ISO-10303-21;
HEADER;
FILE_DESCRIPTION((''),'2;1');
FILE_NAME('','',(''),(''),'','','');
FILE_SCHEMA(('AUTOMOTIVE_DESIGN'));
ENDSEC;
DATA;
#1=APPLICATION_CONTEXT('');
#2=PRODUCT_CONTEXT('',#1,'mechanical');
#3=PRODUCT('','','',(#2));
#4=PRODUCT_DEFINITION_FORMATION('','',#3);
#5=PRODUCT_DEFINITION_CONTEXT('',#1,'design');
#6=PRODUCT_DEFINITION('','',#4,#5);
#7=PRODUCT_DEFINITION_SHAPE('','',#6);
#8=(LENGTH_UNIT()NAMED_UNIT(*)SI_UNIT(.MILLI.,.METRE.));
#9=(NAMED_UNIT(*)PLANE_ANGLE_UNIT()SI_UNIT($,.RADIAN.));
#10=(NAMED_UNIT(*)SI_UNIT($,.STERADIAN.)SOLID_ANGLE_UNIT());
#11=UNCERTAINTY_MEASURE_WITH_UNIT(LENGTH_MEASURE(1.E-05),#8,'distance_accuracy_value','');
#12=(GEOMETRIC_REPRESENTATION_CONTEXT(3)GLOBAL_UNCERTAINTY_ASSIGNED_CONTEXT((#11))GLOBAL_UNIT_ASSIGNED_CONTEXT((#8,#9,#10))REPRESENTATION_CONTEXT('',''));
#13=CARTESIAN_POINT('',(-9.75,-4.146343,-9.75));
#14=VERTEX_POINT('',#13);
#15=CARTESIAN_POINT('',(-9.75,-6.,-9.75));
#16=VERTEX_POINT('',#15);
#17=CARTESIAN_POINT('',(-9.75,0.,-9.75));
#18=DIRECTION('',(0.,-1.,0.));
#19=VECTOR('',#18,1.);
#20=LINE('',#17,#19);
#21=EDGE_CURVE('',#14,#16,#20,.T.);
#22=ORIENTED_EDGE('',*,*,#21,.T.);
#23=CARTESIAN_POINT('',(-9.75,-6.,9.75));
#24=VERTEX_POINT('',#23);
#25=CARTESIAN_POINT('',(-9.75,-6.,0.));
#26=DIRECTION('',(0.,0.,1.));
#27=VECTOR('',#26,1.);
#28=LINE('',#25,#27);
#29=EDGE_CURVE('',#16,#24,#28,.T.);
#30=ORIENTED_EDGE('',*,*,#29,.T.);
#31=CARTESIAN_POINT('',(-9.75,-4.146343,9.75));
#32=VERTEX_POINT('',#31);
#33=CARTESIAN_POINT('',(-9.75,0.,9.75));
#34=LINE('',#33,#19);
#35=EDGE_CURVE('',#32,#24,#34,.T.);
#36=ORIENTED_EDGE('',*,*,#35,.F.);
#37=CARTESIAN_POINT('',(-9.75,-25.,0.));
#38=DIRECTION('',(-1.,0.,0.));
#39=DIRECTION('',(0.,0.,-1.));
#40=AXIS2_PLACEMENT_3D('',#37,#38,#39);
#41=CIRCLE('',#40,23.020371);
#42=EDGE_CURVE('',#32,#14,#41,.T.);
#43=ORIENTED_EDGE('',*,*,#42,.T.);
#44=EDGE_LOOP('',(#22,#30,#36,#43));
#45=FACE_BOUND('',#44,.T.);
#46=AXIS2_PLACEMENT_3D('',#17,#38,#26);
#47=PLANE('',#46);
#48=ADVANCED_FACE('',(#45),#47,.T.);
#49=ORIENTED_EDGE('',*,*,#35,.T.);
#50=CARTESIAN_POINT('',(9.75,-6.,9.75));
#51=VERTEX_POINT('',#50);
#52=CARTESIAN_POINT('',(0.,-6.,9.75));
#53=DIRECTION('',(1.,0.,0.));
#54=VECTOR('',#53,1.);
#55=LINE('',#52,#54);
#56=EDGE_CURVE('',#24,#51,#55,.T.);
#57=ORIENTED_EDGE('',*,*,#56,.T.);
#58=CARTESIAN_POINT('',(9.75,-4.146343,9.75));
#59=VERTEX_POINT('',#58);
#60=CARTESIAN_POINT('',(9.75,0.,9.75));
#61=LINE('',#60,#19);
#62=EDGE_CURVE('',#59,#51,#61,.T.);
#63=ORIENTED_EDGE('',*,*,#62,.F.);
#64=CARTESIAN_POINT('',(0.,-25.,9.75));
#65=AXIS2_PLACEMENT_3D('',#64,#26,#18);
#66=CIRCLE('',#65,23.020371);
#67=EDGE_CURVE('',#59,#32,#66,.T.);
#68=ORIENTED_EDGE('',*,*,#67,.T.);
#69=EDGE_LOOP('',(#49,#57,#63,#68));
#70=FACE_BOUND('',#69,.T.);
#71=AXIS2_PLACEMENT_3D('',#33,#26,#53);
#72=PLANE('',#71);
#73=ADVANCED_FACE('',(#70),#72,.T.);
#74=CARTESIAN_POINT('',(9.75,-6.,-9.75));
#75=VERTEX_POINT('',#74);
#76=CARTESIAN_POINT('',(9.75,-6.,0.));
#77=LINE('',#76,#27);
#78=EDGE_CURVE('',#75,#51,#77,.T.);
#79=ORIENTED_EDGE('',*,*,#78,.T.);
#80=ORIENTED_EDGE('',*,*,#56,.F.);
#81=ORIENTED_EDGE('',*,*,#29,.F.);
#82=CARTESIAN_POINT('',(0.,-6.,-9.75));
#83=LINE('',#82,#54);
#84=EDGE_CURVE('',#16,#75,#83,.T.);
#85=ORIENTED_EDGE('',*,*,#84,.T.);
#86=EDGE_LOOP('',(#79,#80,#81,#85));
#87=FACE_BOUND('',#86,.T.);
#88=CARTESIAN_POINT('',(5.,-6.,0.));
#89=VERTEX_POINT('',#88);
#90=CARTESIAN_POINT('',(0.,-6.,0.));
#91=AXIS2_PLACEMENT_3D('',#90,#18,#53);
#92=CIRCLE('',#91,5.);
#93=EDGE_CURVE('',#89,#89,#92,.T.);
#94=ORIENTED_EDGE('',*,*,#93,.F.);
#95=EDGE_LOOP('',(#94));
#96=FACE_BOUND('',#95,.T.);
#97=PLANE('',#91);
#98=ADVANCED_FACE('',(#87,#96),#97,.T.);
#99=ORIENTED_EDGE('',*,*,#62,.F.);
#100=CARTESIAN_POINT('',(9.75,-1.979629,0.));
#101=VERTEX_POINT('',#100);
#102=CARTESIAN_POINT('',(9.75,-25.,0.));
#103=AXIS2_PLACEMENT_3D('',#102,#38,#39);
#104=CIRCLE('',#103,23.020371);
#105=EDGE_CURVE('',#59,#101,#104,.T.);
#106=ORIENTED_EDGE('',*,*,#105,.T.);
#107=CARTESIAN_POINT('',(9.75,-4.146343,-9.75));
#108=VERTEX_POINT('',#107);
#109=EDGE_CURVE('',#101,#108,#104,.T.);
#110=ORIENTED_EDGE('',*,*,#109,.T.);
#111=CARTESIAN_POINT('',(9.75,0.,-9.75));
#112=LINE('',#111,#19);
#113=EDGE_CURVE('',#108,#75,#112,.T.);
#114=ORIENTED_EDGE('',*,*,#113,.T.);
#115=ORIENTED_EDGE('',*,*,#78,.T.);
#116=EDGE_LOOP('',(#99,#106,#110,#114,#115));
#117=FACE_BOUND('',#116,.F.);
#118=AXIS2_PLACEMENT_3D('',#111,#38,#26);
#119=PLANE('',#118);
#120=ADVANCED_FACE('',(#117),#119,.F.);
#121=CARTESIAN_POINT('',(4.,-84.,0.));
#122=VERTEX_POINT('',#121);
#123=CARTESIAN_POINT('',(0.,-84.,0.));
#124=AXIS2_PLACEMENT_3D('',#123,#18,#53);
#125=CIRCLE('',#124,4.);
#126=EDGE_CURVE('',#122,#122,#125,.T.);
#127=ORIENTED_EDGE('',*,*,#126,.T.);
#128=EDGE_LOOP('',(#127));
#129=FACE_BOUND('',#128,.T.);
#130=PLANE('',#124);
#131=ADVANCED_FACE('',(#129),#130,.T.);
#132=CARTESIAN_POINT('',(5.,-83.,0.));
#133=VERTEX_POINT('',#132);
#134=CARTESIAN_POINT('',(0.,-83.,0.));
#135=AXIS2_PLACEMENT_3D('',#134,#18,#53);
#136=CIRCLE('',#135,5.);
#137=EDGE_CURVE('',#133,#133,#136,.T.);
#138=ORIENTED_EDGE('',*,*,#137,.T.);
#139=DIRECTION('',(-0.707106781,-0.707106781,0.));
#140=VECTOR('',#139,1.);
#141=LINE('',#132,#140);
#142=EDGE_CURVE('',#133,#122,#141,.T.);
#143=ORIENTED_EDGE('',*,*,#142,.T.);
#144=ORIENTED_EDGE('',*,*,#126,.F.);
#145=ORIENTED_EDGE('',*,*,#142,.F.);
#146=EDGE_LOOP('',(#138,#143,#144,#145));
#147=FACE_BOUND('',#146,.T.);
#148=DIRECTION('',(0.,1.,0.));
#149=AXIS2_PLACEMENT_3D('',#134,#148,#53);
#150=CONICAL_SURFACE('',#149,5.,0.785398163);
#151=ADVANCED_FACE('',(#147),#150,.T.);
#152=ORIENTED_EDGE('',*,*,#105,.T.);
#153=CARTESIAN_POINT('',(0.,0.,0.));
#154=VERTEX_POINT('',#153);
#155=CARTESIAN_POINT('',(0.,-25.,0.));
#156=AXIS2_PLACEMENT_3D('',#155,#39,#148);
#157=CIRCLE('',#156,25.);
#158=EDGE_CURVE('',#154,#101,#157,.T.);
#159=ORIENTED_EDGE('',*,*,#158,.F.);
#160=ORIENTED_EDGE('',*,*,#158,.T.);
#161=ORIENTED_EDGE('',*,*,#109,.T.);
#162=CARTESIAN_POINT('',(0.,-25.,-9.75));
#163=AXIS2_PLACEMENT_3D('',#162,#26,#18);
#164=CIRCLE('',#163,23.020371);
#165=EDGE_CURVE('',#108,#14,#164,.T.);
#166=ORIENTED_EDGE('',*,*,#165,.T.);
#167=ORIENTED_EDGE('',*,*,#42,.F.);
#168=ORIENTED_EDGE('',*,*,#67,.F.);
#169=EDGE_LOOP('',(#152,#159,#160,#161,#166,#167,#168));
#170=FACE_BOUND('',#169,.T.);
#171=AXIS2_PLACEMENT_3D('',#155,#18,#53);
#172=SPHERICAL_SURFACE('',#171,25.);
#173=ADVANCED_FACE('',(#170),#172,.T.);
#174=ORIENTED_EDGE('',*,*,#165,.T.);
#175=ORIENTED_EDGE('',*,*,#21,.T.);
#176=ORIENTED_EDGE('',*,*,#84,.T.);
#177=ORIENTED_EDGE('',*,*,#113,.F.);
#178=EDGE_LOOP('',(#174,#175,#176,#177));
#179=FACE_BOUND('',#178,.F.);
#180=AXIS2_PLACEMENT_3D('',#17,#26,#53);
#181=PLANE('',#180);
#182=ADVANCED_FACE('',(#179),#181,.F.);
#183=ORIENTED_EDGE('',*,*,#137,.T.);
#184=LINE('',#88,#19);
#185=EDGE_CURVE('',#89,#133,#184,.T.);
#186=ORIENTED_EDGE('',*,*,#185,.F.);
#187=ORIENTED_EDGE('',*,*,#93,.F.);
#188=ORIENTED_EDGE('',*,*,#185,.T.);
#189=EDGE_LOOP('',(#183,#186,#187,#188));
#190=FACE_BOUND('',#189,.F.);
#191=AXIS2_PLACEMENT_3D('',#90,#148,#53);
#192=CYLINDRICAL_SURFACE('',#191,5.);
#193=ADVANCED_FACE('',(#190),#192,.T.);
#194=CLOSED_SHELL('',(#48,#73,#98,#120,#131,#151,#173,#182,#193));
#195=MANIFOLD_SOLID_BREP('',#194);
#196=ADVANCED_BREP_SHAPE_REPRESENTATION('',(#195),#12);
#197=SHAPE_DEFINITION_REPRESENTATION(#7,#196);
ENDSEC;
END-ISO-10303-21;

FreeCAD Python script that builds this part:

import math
import FreeCAD as App
import Part
import Sketcher


def edges_at(feature, points):
    """Names of the edges that pass closest to the given points."""
    edges = feature.Shape.Edges
    near = lambda p: min(range(len(edges)), key=lambda i: edges[i].distToShape(Part.Vertex(*p))[0])
    return sorted({f"Edge{near(p) + 1}" for p in points})

doc = App.newDocument("Part")
body = doc.addObject("PartDesign::Body", "Body")

sketch1 = doc.addObject("Sketcher::SketchObject", "Sketch")
body.addObject(sketch1)
sketch1.AttachmentSupport = (doc.XZ_Plane, [""])
sketch1.MapMode = "FlatFace"
sketch1.addGeometry(Part.LineSegment(App.Vector(-10, 10, 0), App.Vector(-10, -10, 0)), False)
sketch1.addGeometry(Part.LineSegment(App.Vector(-10, -10, 0), App.Vector(10, -10, 0)), False)
sketch1.addGeometry(Part.LineSegment(App.Vector(10, -10, 0), App.Vector(10, 10, 0)), False)
sketch1.addGeometry(Part.LineSegment(App.Vector(10, 10, 0), App.Vector(-10, 10, 0)), False)
sketch1.addConstraint(Sketcher.Constraint("Coincident", 0, 2, 1, 1))
sketch1.addConstraint(Sketcher.Constraint("Coincident", 1, 2, 2, 1))
sketch1.addConstraint(Sketcher.Constraint("Coincident", 2, 2, 3, 1))
sketch1.addConstraint(Sketcher.Constraint("Coincident", 3, 2, 0, 1))
sketch1.addConstraint(Sketcher.Constraint("Vertical", 0))
sketch1.addConstraint(Sketcher.Constraint("Horizontal", 1))
sketch1.addConstraint(Sketcher.Constraint("Vertical", 2))
sketch1.addConstraint(Sketcher.Constraint("Horizontal", 3))
sketch1.addConstraint(Sketcher.Constraint("Symmetric", 0, 2, 2, 2, -1, 1))
sketch1.addConstraint(Sketcher.Constraint("Equal", 3, 0))
sketch1.addConstraint(Sketcher.Constraint("DistanceX", 1, 1, 1, 2, 19.5))
pad1 = doc.addObject("PartDesign::Pad", "Pad")
body.addObject(pad1)
pad1.Profile = sketch1
pad1.Length = 6

sketch2 = doc.addObject("Sketcher::SketchObject", "Sketch001")
body.addObject(sketch2)
sketch2.AttachmentSupport = (doc.XZ_Plane, [""])
sketch2.MapMode = "FlatFace"
sketch2.AttachmentOffset = App.Placement(App.Vector(0, 0, 6), App.Rotation())
sketch2.addGeometry(Part.Circle(App.Vector(0, 0, 0), App.Vector(0, 0, 1), 5), False)
sketch2.addConstraint(Sketcher.Constraint("Coincident", 0, 3, -1, 1))
sketch2.addConstraint(Sketcher.Constraint("Diameter", 0, 10.0))
pad2 = doc.addObject("PartDesign::Pad", "Pad001")
body.addObject(pad2)
pad2.Profile = sketch2
pad2.Length = 78
doc.recompute()

chamfer = doc.addObject("PartDesign::Chamfer", "Chamfer")
body.addObject(chamfer)
chamfer.Base = (pad2, edges_at(pad2, [(-5, -84, 0)]))
chamfer.Size = 1

sketch3 = doc.addObject("Sketcher::SketchObject", "Sketch002")
body.addObject(sketch3)
sketch3.AttachmentSupport = (doc.XY_Plane, [""])
sketch3.MapMode = "FlatFace"
sketch3.addGeometry(Part.ArcOfCircle(Part.Circle(App.Vector(0, -25, 0), App.Vector(0, 0, 1), 25), math.radians(0), math.radians(90)), False)
sketch3.addGeometry(Part.LineSegment(App.Vector(25, -25, 0), App.Vector(36, -25, 0)), False)
sketch3.addGeometry(Part.ArcOfCircle(Part.Circle(App.Vector(0, -25, 0), App.Vector(0, 0, 1), 36), math.radians(0), math.radians(90)), False)
sketch3.addGeometry(Part.LineSegment(App.Vector(0, 11, 0), App.Vector(0, 0, 0)), False)
sketch3.addConstraint(Sketcher.Constraint("Coincident", 0, 1, 1, 1))
sketch3.addConstraint(Sketcher.Constraint("Coincident", 1, 2, 2, 1))
sketch3.addConstraint(Sketcher.Constraint("Coincident", 2, 2, 3, 1))
sketch3.addConstraint(Sketcher.Constraint("Coincident", 3, 2, 0, 2))
sketch3.addConstraint(Sketcher.Constraint("Horizontal", 1))
sketch3.addConstraint(Sketcher.Constraint("Vertical", 3))
sketch3.addConstraint(Sketcher.Constraint("Coincident", 3, 2, -1, 1))
sketch3.addConstraint(Sketcher.Constraint("Coincident", 2, 3, 0, 3))
sketch3.addConstraint(Sketcher.Constraint("PointOnObject", 0, 3, -2))
sketch3.addConstraint(Sketcher.Constraint("Horizontal", 2, 3, 0, 1))
sketch3.addConstraint(Sketcher.Constraint("Radius", 0, 25.0))
sketch3.addConstraint(Sketcher.Constraint("Radius", 2, 35.527138))
groove = doc.addObject("PartDesign::Groove", "Groove")
body.addObject(groove)
groove.Profile = sketch3
groove.ReferenceAxis = (sketch3, ["V_Axis"])
groove.Angle = 360

doc.recompute()
